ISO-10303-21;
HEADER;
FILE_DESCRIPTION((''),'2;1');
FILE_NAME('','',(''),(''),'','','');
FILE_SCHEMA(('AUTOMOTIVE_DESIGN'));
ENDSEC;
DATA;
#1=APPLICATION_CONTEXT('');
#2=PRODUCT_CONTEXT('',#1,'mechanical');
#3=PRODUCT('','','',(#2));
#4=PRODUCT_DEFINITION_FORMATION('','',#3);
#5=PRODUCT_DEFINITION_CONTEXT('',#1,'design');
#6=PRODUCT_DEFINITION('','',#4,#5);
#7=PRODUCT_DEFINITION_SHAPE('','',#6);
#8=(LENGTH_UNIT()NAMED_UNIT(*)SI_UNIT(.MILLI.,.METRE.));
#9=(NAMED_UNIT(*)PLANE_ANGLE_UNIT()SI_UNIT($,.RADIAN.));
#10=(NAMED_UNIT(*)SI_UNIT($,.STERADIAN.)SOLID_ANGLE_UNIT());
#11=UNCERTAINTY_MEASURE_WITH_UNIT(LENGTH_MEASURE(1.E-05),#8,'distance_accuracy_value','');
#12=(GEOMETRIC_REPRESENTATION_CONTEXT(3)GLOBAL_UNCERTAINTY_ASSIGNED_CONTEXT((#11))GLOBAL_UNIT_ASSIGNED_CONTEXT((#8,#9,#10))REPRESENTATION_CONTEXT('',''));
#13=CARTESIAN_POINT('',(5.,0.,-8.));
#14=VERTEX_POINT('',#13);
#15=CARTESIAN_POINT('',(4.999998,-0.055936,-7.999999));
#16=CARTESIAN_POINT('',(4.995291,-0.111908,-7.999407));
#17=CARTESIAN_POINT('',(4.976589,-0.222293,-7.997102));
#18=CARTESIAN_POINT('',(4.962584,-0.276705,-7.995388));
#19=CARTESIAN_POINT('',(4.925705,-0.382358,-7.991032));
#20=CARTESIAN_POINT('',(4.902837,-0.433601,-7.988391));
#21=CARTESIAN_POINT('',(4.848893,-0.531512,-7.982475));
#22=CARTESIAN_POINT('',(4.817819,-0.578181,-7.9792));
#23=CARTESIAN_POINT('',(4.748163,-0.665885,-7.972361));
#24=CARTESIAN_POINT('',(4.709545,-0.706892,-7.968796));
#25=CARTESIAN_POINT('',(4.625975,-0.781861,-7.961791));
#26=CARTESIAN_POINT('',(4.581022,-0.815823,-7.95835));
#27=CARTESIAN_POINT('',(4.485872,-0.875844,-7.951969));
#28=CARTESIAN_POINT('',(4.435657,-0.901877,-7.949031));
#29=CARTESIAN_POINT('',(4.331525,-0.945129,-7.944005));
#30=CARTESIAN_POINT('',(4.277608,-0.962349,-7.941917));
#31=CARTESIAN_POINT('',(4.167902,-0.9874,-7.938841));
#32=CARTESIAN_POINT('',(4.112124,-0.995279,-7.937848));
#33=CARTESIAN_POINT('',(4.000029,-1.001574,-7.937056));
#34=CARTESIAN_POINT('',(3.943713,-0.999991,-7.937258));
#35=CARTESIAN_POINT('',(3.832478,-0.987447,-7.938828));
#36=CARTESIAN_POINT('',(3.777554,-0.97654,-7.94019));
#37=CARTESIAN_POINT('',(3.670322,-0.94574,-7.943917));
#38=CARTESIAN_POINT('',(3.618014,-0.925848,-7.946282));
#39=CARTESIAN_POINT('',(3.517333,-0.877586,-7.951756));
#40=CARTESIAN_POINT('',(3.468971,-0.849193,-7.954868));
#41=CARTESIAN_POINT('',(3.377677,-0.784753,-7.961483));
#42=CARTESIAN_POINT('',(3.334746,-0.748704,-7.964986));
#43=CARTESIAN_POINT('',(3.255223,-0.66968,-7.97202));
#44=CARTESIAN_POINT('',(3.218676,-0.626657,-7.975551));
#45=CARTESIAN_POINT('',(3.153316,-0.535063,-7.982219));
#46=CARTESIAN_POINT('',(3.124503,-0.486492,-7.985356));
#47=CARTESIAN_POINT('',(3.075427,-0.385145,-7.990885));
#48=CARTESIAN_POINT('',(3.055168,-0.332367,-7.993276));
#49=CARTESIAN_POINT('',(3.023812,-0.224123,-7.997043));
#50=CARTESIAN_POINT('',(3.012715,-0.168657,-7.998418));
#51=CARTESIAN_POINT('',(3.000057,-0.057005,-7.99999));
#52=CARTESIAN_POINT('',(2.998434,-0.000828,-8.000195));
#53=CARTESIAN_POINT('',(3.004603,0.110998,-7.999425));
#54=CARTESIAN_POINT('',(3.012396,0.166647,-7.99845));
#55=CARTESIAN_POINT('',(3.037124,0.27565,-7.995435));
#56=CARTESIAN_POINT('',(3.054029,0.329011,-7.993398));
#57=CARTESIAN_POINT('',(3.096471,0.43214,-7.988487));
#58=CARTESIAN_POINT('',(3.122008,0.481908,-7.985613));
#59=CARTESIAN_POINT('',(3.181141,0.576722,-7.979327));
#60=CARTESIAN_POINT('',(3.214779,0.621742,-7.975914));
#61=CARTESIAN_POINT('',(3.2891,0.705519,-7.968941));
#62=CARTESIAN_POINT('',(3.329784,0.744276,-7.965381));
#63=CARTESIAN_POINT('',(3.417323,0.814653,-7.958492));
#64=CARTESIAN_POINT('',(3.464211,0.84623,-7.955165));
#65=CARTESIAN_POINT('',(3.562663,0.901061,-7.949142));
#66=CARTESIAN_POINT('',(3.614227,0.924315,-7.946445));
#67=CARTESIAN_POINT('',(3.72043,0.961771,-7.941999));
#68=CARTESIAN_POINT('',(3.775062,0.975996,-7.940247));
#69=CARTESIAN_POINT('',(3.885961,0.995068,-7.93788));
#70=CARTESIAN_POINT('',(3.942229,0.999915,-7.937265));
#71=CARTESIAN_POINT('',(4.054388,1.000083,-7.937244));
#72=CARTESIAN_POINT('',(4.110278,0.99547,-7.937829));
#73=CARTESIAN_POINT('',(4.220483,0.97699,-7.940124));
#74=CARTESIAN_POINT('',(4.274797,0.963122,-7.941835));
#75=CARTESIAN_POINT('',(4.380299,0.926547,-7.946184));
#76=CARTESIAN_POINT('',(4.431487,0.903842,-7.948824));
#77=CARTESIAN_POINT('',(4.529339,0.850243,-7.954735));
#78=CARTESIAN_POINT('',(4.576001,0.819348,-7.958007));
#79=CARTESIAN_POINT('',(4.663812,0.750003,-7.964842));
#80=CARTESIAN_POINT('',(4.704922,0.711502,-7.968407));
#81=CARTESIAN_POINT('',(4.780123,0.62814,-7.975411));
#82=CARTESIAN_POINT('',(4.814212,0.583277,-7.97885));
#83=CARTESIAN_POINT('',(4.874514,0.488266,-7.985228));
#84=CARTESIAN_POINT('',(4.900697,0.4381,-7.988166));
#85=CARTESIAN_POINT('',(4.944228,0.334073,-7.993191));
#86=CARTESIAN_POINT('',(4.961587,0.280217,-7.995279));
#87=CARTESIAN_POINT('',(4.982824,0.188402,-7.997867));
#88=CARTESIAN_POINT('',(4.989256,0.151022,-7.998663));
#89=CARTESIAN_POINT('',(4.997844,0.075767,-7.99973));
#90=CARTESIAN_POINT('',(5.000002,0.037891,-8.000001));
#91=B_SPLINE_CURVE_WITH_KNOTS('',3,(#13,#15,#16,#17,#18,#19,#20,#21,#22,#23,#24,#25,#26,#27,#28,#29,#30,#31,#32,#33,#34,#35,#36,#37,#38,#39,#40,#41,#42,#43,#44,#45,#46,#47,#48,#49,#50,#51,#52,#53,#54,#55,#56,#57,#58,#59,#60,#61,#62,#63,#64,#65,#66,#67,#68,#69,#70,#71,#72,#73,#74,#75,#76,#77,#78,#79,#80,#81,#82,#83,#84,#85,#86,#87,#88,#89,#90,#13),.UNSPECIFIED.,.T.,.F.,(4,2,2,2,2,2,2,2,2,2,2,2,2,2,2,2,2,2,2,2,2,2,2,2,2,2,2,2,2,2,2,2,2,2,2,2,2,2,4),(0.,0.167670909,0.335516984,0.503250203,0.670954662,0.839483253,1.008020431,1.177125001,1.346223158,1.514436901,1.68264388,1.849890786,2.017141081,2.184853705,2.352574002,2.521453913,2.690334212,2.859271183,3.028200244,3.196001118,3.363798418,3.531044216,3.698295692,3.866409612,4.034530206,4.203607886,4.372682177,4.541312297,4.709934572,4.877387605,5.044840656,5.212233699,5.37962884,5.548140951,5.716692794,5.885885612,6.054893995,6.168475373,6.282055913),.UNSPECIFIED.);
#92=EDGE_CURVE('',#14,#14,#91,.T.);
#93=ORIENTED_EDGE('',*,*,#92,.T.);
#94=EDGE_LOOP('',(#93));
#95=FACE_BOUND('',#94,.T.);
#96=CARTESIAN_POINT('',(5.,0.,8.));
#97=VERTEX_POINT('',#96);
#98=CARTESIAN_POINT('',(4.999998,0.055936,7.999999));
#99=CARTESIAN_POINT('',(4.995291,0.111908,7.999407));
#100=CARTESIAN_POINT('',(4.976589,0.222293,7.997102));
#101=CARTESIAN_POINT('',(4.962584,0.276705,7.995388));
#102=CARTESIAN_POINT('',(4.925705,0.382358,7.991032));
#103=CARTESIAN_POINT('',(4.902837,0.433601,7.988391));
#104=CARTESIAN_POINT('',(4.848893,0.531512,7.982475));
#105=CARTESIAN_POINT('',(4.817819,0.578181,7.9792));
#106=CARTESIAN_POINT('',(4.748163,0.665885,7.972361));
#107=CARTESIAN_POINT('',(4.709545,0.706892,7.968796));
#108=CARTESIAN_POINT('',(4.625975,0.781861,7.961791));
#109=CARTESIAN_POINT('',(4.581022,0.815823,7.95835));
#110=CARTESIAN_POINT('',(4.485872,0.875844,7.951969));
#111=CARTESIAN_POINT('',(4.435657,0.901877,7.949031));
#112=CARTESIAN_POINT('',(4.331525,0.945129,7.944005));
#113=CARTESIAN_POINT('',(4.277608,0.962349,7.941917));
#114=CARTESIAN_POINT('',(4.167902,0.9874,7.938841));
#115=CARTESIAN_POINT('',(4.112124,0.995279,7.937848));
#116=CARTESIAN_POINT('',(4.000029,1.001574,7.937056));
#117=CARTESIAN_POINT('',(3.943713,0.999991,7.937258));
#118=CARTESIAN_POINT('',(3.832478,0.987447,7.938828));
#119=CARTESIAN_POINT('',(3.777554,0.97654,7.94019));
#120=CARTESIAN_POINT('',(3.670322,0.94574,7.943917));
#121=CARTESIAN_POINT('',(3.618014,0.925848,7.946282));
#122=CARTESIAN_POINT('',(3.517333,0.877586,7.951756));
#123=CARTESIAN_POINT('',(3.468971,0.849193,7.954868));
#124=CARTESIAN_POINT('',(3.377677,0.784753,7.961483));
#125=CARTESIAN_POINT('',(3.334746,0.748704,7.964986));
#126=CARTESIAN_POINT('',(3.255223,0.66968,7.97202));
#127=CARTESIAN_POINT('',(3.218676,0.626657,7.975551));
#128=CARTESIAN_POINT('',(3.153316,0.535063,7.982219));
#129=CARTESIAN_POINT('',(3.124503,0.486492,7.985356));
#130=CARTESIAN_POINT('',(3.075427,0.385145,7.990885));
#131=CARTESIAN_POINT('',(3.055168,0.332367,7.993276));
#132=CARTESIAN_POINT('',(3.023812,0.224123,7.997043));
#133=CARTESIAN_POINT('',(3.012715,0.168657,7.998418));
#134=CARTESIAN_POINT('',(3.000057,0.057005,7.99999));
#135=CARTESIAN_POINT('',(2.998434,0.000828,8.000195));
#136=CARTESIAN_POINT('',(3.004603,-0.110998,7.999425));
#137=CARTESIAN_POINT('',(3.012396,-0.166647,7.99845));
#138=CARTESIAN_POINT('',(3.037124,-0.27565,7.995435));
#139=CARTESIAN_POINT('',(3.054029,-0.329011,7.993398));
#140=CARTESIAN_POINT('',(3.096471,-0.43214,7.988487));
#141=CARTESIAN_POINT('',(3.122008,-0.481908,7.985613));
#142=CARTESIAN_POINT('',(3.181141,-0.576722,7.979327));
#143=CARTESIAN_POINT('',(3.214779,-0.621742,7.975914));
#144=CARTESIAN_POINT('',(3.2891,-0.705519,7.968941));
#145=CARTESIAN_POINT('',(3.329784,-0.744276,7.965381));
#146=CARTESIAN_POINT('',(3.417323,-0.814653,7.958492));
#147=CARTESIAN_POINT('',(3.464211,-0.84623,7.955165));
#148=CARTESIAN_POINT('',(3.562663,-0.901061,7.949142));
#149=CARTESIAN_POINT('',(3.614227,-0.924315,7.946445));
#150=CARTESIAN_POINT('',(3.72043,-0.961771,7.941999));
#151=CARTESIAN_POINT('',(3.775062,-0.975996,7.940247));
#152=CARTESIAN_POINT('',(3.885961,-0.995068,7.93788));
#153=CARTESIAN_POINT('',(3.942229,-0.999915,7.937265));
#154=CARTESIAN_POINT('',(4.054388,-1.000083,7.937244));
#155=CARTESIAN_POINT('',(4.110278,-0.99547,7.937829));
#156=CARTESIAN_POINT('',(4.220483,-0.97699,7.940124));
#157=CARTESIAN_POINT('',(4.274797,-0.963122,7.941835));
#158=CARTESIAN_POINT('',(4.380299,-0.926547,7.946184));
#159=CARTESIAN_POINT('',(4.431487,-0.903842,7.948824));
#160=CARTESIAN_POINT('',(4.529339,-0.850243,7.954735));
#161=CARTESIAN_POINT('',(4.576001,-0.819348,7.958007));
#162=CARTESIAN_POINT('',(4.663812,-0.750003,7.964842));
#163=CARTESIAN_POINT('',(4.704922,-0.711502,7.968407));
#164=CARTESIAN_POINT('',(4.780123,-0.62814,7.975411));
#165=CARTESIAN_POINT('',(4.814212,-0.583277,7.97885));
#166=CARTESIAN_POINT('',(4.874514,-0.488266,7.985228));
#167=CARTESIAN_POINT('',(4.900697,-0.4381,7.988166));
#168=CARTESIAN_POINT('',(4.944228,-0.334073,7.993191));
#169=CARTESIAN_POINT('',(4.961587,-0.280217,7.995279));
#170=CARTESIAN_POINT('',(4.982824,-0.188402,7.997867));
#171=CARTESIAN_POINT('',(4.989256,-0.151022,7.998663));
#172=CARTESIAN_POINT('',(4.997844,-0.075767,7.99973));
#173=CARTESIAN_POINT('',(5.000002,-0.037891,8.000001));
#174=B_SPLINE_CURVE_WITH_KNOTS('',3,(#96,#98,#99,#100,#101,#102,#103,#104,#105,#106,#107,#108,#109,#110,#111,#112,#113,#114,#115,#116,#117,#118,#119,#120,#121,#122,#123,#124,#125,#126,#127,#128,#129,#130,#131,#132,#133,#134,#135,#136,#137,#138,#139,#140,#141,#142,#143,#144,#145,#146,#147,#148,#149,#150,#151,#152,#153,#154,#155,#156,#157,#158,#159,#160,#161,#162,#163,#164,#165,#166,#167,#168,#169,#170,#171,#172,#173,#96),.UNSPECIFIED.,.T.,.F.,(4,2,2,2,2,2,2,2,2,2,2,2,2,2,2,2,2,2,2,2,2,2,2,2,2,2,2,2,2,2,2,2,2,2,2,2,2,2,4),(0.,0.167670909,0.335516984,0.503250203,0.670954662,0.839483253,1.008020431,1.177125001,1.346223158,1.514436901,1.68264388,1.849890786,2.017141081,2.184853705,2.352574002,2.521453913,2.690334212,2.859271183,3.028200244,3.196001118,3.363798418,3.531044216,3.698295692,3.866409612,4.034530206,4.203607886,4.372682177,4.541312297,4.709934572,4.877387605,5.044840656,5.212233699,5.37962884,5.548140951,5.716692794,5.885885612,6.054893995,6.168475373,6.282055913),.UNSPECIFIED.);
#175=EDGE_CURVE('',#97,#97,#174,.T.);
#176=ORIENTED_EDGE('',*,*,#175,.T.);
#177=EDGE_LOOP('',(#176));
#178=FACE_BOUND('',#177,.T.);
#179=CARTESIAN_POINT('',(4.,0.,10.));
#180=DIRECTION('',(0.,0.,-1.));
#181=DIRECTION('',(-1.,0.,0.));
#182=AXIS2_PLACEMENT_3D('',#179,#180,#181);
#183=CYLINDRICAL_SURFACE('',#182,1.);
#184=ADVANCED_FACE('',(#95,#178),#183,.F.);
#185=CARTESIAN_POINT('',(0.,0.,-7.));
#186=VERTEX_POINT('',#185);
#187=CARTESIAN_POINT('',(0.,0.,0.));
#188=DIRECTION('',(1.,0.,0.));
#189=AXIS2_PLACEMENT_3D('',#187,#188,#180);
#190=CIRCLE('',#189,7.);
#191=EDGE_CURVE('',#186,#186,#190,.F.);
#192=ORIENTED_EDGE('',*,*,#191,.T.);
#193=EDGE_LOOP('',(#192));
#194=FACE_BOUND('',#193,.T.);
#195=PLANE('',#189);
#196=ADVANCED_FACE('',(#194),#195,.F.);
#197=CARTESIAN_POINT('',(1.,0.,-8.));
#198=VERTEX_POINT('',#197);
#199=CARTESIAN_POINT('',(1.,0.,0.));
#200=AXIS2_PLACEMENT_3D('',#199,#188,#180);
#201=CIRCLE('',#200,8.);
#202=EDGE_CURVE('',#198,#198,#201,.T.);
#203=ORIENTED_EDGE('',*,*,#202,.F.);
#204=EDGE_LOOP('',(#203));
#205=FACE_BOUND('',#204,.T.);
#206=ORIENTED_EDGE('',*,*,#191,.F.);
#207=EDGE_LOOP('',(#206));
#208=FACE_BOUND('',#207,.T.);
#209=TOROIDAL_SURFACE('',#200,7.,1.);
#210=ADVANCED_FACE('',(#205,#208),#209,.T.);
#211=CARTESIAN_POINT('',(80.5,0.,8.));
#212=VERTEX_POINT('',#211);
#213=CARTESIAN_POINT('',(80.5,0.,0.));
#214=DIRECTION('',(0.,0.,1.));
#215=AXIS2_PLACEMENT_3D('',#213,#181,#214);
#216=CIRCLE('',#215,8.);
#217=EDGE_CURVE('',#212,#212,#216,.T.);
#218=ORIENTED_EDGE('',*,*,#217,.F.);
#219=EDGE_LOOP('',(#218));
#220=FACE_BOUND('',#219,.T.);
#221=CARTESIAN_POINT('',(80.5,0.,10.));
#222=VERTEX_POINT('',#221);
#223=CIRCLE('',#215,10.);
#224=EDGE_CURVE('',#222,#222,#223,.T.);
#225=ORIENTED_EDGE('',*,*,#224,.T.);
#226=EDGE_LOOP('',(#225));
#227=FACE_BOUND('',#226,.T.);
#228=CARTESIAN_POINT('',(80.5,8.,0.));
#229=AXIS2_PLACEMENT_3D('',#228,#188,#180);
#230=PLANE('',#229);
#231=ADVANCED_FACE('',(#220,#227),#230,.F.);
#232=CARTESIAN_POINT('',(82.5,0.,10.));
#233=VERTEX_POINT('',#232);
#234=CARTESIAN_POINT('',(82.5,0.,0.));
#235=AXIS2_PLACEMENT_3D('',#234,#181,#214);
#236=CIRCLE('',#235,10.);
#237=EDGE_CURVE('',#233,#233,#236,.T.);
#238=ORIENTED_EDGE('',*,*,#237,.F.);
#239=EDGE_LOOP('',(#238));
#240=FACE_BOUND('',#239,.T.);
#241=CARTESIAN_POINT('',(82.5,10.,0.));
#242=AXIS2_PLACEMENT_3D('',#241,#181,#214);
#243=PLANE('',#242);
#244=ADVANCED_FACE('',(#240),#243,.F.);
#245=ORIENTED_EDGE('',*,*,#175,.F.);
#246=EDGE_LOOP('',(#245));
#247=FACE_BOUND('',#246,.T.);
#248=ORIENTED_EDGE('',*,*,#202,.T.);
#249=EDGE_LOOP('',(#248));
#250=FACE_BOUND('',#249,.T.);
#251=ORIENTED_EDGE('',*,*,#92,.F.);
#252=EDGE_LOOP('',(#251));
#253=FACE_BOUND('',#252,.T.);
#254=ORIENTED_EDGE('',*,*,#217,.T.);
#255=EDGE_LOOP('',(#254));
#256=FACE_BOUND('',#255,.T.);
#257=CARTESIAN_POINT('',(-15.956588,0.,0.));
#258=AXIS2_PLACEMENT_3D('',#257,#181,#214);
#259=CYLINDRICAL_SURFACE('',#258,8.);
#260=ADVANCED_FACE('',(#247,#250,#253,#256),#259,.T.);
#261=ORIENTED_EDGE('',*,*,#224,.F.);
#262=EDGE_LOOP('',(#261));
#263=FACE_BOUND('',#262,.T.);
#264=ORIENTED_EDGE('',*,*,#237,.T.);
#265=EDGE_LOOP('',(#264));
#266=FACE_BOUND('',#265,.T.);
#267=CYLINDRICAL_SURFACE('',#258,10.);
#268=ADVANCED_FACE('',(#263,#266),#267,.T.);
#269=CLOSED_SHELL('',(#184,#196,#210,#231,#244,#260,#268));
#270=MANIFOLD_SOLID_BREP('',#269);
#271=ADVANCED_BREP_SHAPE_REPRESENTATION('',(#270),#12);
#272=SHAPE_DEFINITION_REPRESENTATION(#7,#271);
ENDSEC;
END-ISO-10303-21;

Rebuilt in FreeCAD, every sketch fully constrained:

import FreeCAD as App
import Part
import Sketcher
from FreeCAD import Vector


def edges_at(feature, points):
    """Names of the edges that pass closest to the given points."""
    edges = feature.Shape.Edges
    near = lambda p: min(range(len(edges)), key=lambda i: edges[i].distToShape(Part.Vertex(*p))[0])
    return sorted({f"Edge{near(p) + 1}" for p in points})

doc = App.newDocument("Part")
body = doc.addObject("PartDesign::Body", "Body")

# Sketch on XY plane
sketch1 = body.newObject("Sketcher::SketchObject", "Sketch")
sketch1.AttachmentSupport = (doc.getObject("XY_Plane"), [""])
sketch1.MapMode = "FlatFace"
sketch1.addGeometry([
    Part.LineSegment(Vector(0, 8, 0), Vector(0, 0, 0)),  # 0
    Part.LineSegment(Vector(0, 0, 0), Vector(82.5, 0, 0)),  # 1
    Part.LineSegment(Vector(82.5, 0, 0), Vector(82.5, 10, 0)),  # 2
    Part.LineSegment(Vector(82.5, 10, 0), Vector(80.5, 10, 0)),  # 3
    Part.LineSegment(Vector(80.5, 10, 0), Vector(80.5, 8, 0)),  # 4
    Part.LineSegment(Vector(80.5, 8, 0), Vector(0, 8, 0)),  # 5
], False)
sketch1.addConstraint([
    Sketcher.Constraint("Coincident", 0, 2, 1, 1),
    Sketcher.Constraint("Coincident", 1, 2, 2, 1),
    Sketcher.Constraint("Coincident", 2, 2, 3, 1),
    Sketcher.Constraint("Coincident", 3, 2, 4, 1),
    Sketcher.Constraint("Coincident", 4, 2, 5, 1),
    Sketcher.Constraint("Coincident", 5, 2, 0, 1),
    Sketcher.Constraint("Vertical", 0),
    Sketcher.Constraint("Horizontal", 1),
    Sketcher.Constraint("Vertical", 2),
    Sketcher.Constraint("Horizontal", 3),
    Sketcher.Constraint("Vertical", 4),
    Sketcher.Constraint("Horizontal", 5),
    Sketcher.Constraint("Coincident", 0, 2, -1, 1),
    Sketcher.Constraint("Equal", 3, 4),
    Sketcher.Constraint("DistanceX", 3, 2, 3, 1, 2.0),
    Sketcher.Constraint("DistanceY", 0, 2, 0, 1, 8.0),
    Sketcher.Constraint("DistanceX", 1, 1, 1, 2, 82.5),
])
revolution = body.newObject("PartDesign::Revolution", "Revolution")
revolution.Profile = sketch1
revolution.ReferenceAxis = (sketch1, ["H_Axis"])
revolution.Angle = 360

# Sketch on XY plane
sketch2 = body.newObject("Sketcher::SketchObject", "Sketch001")
sketch2.AttachmentSupport = (doc.getObject("XY_Plane"), [""])
sketch2.MapMode = "FlatFace"
sketch2.addGeometry(Part.Circle(Vector(4, 0, 0), Vector(0, 0, 1), 1), False)
sketch2.addConstraint([
    Sketcher.Constraint("PointOnObject", 0, 3, -1),
    Sketcher.Constraint("Diameter", 0, 2.0),
    Sketcher.Constraint("DistanceX", -1, 1, 0, 3, 4.0),
])
pocket1 = body.newObject("PartDesign::Pocket", "Pocket")
pocket1.Profile = sketch2
pocket1.Length = 8

# Sketch on XY plane
sketch3 = body.newObject("Sketcher::SketchObject", "Sketch002")
sketch3.AttachmentSupport = (doc.getObject("XY_Plane"), [""])
sketch3.MapMode = "FlatFace"
sketch3.addGeometry(Part.Circle(Vector(4, 0, 0), Vector(0, 0, 1), 1), False)
sketch3.addConstraint([
    Sketcher.Constraint("PointOnObject", 0, 3, -1),
    Sketcher.Constraint("Diameter", 0, 2.0),
    Sketcher.Constraint("DistanceX", -1, 1, 0, 3, 4.0),
])
pocket2 = body.newObject("PartDesign::Pocket", "Pocket001")
pocket2.Profile = sketch3
pocket2.Length = 11
pocket2.Reversed = True
doc.recompute()

fillet = body.newObject("PartDesign::Fillet", "Fillet")
fillet.Base = (pocket2, edges_at(pocket2, [(0, -8, 0)]))
fillet.Radius = 1

doc.recompute()
